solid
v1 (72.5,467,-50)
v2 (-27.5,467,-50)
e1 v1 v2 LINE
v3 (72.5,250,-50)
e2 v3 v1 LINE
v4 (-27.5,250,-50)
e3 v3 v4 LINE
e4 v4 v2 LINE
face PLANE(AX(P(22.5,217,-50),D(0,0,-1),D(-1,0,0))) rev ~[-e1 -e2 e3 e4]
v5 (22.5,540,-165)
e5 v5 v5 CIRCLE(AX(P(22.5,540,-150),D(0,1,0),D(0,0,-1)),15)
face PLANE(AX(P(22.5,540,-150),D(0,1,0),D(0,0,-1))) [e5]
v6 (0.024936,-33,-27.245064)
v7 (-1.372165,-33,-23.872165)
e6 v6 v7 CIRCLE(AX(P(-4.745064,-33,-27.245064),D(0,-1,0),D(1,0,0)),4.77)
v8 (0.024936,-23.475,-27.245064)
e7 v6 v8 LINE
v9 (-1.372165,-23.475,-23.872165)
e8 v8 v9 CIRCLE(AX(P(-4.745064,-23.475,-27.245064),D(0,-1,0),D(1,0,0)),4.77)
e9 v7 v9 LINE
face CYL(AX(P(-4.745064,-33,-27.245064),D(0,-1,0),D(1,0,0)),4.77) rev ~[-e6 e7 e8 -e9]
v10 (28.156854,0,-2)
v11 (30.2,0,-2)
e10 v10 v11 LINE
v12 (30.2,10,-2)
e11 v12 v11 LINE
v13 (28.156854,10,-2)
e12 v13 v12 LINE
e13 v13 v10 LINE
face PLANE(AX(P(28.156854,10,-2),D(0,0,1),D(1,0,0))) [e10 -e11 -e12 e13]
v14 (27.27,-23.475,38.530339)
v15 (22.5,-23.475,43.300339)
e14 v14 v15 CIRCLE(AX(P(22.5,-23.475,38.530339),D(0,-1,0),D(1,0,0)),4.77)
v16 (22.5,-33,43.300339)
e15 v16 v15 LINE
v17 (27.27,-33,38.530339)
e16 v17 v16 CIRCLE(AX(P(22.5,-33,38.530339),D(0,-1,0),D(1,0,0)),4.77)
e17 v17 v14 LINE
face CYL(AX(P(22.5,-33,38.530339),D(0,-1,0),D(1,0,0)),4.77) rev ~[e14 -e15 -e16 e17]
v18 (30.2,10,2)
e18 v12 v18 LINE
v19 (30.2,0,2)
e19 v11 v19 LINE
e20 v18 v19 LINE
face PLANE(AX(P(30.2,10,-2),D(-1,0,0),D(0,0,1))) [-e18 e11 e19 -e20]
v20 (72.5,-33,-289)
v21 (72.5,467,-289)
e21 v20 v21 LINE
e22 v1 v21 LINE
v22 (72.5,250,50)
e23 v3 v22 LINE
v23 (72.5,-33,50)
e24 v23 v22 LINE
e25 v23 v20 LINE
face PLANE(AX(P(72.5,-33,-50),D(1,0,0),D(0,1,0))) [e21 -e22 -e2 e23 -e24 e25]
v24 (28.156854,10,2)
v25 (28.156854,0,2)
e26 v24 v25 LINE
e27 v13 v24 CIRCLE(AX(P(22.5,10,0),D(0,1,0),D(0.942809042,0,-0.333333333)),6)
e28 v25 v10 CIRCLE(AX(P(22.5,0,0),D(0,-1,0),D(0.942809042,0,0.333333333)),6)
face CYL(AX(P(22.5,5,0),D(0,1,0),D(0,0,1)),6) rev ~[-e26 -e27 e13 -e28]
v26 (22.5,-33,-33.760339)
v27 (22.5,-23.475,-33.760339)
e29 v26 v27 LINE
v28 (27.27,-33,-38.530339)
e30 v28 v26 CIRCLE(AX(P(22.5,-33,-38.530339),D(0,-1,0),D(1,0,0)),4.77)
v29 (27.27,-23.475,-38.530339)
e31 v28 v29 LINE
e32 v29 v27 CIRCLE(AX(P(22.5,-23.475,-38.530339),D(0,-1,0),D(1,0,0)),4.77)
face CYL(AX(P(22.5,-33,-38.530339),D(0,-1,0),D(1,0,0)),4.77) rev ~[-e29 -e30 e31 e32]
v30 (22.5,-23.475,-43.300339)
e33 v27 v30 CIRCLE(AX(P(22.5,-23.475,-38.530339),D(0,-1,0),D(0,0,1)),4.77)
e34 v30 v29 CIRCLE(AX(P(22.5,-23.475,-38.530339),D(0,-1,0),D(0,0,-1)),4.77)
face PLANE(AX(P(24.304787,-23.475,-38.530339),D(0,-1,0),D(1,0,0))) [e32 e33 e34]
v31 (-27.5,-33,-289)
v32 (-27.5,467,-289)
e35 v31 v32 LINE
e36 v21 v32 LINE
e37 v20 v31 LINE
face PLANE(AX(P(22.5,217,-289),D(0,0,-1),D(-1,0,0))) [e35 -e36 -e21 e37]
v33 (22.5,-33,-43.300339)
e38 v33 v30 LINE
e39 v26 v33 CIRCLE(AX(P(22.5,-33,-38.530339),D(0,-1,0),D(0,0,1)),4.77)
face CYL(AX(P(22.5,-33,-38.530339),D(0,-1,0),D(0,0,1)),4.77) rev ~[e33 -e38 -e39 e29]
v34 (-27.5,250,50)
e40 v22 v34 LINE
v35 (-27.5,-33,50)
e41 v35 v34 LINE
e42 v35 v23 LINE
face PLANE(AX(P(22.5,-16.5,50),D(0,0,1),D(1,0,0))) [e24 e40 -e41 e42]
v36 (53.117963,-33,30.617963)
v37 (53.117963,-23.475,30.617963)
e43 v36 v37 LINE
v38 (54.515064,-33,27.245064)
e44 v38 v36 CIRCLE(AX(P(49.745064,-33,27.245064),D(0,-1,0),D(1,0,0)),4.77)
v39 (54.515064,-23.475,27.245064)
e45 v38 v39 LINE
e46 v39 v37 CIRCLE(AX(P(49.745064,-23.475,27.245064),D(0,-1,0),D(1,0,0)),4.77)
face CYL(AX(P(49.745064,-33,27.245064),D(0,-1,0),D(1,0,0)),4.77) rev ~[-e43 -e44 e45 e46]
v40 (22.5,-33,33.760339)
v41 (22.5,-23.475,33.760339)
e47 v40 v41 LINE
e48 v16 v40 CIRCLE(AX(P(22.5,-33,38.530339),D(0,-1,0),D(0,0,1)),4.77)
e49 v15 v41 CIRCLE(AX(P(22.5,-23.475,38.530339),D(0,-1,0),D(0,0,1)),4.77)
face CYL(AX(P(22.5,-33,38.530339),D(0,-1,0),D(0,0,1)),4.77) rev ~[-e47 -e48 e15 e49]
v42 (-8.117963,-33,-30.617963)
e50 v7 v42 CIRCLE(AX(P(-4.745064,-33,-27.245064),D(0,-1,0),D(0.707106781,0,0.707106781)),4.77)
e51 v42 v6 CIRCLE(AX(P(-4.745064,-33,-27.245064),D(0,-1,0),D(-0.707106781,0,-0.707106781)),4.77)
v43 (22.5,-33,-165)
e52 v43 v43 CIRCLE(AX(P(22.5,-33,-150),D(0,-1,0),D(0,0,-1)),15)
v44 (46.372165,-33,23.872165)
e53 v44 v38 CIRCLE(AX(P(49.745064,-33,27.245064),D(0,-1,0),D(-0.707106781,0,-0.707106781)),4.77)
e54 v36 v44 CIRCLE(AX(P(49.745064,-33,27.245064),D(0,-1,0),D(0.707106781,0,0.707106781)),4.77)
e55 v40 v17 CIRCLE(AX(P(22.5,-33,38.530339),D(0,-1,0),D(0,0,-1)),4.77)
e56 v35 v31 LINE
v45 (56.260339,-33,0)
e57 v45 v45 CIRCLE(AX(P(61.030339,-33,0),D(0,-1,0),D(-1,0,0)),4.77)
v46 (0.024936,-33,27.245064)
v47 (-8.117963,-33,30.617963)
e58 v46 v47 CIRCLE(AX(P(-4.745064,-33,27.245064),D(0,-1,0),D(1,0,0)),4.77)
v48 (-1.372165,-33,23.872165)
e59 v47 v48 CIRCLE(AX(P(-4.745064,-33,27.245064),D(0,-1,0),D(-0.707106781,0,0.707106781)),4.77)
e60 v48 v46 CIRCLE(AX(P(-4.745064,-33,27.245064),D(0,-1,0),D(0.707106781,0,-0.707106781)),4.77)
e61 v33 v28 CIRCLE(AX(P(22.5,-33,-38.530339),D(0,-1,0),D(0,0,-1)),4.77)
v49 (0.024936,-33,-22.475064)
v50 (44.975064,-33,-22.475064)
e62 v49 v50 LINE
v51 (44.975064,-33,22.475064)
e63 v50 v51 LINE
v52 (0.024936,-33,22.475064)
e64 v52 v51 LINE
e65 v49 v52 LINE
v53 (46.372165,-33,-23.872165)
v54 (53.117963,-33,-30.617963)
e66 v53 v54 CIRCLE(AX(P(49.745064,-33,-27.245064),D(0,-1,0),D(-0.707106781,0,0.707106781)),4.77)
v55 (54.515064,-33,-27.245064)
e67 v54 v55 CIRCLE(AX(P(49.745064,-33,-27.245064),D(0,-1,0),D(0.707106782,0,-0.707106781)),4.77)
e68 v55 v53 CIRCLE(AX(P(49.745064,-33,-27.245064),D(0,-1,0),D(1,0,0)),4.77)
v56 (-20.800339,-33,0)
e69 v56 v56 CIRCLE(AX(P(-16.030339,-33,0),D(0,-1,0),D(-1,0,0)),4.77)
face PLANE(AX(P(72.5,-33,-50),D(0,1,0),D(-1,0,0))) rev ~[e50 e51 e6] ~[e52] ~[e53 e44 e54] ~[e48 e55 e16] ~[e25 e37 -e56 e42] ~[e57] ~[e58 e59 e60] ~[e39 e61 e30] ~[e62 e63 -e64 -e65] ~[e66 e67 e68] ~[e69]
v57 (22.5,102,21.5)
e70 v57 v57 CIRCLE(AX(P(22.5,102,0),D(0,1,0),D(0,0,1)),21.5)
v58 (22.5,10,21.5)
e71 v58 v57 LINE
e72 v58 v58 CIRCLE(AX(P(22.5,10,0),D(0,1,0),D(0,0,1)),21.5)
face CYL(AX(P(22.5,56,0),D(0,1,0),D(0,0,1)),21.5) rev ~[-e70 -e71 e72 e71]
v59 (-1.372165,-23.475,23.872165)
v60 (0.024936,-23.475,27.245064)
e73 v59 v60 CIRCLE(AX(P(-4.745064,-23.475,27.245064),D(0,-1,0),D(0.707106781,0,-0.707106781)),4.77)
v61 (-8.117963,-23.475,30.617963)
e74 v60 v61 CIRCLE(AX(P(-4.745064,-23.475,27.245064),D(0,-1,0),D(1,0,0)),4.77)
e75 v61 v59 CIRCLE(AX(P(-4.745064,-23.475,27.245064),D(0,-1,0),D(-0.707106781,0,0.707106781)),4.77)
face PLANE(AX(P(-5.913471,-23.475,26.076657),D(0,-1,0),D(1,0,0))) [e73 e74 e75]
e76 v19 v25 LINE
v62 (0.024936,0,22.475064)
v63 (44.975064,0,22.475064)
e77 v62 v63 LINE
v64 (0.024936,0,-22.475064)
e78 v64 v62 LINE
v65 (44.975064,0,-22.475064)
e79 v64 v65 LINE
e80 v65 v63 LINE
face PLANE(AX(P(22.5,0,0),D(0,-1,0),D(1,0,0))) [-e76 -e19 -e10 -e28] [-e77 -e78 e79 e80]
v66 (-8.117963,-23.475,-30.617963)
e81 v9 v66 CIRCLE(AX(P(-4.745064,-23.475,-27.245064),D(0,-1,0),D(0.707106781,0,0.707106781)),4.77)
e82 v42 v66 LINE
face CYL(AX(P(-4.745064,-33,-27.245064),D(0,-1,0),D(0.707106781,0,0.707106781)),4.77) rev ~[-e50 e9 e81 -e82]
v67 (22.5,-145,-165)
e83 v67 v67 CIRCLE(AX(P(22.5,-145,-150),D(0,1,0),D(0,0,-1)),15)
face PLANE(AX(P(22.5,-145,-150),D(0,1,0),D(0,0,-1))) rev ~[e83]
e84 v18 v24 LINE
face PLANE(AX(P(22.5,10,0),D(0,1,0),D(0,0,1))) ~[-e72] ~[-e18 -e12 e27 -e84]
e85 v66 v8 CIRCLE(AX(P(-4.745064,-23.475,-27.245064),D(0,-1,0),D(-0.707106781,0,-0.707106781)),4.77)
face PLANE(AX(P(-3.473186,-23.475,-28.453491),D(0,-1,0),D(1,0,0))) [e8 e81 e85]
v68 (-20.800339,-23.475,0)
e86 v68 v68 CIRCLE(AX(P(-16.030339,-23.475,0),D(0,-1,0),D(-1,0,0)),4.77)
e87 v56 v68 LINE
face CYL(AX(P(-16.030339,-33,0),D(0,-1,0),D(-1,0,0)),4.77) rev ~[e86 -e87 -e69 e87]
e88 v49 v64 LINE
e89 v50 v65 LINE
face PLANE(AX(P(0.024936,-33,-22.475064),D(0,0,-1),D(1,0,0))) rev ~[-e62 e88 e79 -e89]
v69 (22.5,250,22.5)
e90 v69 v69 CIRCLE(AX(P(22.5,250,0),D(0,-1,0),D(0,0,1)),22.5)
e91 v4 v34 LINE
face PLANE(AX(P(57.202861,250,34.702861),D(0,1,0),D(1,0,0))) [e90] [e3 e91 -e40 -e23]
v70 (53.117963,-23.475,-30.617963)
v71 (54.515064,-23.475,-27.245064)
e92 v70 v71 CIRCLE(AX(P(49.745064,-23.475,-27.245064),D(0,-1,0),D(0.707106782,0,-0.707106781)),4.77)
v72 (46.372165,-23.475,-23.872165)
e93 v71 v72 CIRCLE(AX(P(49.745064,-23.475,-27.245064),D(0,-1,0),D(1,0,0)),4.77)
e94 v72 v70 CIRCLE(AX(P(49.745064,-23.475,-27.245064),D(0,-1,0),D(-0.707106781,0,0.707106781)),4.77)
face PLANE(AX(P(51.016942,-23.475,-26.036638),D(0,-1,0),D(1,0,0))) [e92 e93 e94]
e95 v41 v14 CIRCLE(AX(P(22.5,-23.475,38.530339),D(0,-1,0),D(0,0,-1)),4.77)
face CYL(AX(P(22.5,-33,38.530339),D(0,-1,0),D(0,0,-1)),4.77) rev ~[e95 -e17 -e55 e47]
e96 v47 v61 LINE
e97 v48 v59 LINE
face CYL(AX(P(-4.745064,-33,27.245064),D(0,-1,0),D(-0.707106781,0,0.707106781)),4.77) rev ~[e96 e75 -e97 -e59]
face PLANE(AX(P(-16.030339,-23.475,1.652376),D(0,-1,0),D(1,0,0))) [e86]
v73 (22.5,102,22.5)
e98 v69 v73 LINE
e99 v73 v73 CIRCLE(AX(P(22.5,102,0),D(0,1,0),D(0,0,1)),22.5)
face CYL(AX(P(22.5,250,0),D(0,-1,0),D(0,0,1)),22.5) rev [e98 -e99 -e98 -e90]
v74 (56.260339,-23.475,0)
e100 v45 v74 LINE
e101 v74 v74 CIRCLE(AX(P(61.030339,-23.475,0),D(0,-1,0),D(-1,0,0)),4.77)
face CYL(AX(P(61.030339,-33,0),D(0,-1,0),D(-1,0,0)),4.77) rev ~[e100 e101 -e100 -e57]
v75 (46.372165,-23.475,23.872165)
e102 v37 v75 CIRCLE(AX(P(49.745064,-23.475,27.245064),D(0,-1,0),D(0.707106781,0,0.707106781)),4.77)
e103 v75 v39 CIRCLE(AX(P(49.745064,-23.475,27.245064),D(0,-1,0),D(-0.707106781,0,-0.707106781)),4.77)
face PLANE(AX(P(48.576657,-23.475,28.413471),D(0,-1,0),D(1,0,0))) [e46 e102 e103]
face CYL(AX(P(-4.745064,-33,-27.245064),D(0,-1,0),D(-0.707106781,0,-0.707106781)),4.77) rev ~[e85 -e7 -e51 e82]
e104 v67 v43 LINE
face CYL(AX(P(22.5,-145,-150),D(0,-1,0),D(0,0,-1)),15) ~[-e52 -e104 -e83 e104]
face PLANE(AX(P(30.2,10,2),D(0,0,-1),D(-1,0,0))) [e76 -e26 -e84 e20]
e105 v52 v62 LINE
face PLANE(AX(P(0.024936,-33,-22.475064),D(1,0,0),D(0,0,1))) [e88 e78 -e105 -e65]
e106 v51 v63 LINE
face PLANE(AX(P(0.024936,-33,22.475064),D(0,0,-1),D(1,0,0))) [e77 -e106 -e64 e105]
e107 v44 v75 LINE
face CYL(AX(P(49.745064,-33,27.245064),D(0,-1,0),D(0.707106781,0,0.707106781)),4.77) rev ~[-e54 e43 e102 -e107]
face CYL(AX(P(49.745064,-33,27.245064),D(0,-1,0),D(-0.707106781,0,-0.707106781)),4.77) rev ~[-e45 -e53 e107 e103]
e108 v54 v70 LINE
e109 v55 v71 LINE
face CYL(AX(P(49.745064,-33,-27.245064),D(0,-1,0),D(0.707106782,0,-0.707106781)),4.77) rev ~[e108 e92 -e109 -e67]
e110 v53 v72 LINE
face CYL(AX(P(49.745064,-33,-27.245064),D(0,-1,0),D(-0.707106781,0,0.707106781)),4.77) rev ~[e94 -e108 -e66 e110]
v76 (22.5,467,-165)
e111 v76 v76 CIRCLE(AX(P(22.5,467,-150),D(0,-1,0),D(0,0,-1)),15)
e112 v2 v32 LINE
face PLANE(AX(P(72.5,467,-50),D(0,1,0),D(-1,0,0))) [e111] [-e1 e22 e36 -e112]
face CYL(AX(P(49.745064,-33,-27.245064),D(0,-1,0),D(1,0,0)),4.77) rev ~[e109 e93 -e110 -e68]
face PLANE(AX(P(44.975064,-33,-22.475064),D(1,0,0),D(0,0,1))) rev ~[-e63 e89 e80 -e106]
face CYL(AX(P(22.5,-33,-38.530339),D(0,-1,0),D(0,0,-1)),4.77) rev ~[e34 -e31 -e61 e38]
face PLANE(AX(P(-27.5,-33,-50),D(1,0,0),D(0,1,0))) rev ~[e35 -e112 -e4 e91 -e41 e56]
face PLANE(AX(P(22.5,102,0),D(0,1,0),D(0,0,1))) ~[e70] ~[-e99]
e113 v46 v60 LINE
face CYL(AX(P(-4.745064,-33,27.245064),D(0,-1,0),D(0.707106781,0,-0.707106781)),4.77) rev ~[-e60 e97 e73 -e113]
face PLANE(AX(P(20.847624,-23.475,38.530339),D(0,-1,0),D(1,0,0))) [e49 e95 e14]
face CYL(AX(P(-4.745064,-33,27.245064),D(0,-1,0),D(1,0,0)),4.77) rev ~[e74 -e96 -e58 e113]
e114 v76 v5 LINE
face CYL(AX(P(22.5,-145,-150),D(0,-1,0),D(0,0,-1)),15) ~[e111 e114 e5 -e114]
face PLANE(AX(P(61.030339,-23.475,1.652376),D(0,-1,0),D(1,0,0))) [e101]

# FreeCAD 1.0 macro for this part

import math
import FreeCAD as App
import Part
import Sketcher

V = App.Vector

doc = App.newDocument("Part")
body = doc.addObject("PartDesign::Body", "Body")

# Sketch on XY plane
sketch1 = body.newObject("Sketcher::SketchObject", "Sketch")
sketch1.AttachmentSupport = (doc.getObject("XY_Plane"), [""])
sketch1.MapMode = "FlatFace"
sketch1.addGeometry(Part.LineSegment(V(-10, 0, 0), V(16.5, 0, 0)), False)
sketch1.addGeometry(Part.LineSegment(V(16.5, 0, 0), V(16.5, 10, 0)), False)
sketch1.addGeometry(Part.LineSegment(V(16.5, 10, 0), V(1, 10, 0)), False)
sketch1.addGeometry(Part.LineSegment(V(1, 10, 0), V(1, 102, 0)), False)
sketch1.addGeometry(Part.LineSegment(V(1, 102, 0), V(0, 102, 0)), False)
sketch1.addGeometry(Part.LineSegment(V(0, 102, 0), V(0, 250, 0)), False)
sketch1.addGeometry(Part.LineSegment(V(0, 250, 0), V(-10, 250, 0)), False)
sketch1.addGeometry(Part.LineSegment(V(-10, 250, 0), V(-10, 0, 0)), False)
sketch1.addGeometry(Part.LineSegment(V(28.5, 10, 0), V(28.5, 0, 0)), False)
sketch1.addGeometry(Part.LineSegment(V(28.5, 0, 0), V(55, 0, 0)), False)
sketch1.addGeometry(Part.LineSegment(V(55, 0, 0), V(55, 250, 0)), False)
sketch1.addGeometry(Part.LineSegment(V(55, 250, 0), V(45, 250, 0)), False)
sketch1.addGeometry(Part.LineSegment(V(45, 250, 0), V(45, 102, 0)), False)
sketch1.addGeometry(Part.LineSegment(V(45, 102, 0), V(44, 102, 0)), False)
sketch1.addGeometry(Part.LineSegment(V(44, 102, 0), V(44, 10, 0)), False)
sketch1.addGeometry(Part.LineSegment(V(44, 10, 0), V(28.5, 10, 0)), False)
sketch1.addGeometry(Part.LineSegment(V(22.5, 0, 0), V(22.5, 250, 0)), True)  # axis
sketch1.addConstraint(Sketcher.Constraint("Coincident", 0, 2, 1, 1))
sketch1.addConstraint(Sketcher.Constraint("Coincident", 1, 2, 2, 1))
sketch1.addConstraint(Sketcher.Constraint("Coincident", 2, 2, 3, 1))
sketch1.addConstraint(Sketcher.Constraint("Coincident", 3, 2, 4, 1))
sketch1.addConstraint(Sketcher.Constraint("Coincident", 4, 2, 5, 1))
sketch1.addConstraint(Sketcher.Constraint("Coincident", 5, 2, 6, 1))
sketch1.addConstraint(Sketcher.Constraint("Coincident", 6, 2, 7, 1))
sketch1.addConstraint(Sketcher.Constraint("Coincident", 7, 2, 0, 1))
sketch1.addConstraint(Sketcher.Constraint("Coincident", 8, 2, 9, 1))
sketch1.addConstraint(Sketcher.Constraint("Coincident", 9, 2, 10, 1))
sketch1.addConstraint(Sketcher.Constraint("Coincident", 10, 2, 11, 1))
sketch1.addConstraint(Sketcher.Constraint("Coincident", 11, 2, 12, 1))
sketch1.addConstraint(Sketcher.Constraint("Coincident", 12, 2, 13, 1))
sketch1.addConstraint(Sketcher.Constraint("Coincident", 13, 2, 14, 1))
sketch1.addConstraint(Sketcher.Constraint("Coincident", 14, 2, 15, 1))
sketch1.addConstraint(Sketcher.Constraint("Coincident", 15, 2, 8, 1))
sketch1.addConstraint(Sketcher.Constraint("Horizontal", 0))
sketch1.addConstraint(Sketcher.Constraint("Vertical", 1))
sketch1.addConstraint(Sketcher.Constraint("Horizontal", 2))
sketch1.addConstraint(Sketcher.Constraint("Vertical", 3))
sketch1.addConstraint(Sketcher.Constraint("Horizontal", 4))
sketch1.addConstraint(Sketcher.Constraint("Vertical", 5))
sketch1.addConstraint(Sketcher.Constraint("Horizontal", 6))
sketch1.addConstraint(Sketcher.Constraint("Vertical", 7))
sketch1.addConstraint(Sketcher.Constraint("Vertical", 8))
sketch1.addConstraint(Sketcher.Constraint("Horizontal", 9))
sketch1.addConstraint(Sketcher.Constraint("Vertical", 10))
sketch1.addConstraint(Sketcher.Constraint("Horizontal", 11))
sketch1.addConstraint(Sketcher.Constraint("Vertical", 12))
sketch1.addConstraint(Sketcher.Constraint("Horizontal", 13))
sketch1.addConstraint(Sketcher.Constraint("Vertical", 14))
sketch1.addConstraint(Sketcher.Constraint("Horizontal", 15))
sketch1.addConstraint(Sketcher.Constraint("Vertical", 16))
sketch1.addConstraint(Sketcher.Constraint("PointOnObject", 0, 2, -1))
sketch1.addConstraint(Sketcher.Constraint("PointOnObject", 4, 2, -2))
sketch1.addConstraint(Sketcher.Constraint("PointOnObject", 8, 2, -1))
sketch1.addConstraint(Sketcher.Constraint("PointOnObject", 16, 1, -1))
sketch1.addConstraint(Sketcher.Constraint("Horizontal", 6, 2, 10, 2))
sketch1.addConstraint(Sketcher.Constraint("Horizontal", 4, 2, 12, 2))
sketch1.addConstraint(Sketcher.Constraint("Horizontal", 2, 2, 14, 2))
sketch1.addConstraint(Sketcher.Constraint("Horizontal", 11, 2, 16, 2))
sketch1.addConstraint(Sketcher.Constraint("Equal", 0, 9))
sketch1.addConstraint(Sketcher.Constraint("Equal", 6, 11))
sketch1.addConstraint(Sketcher.Constraint("Equal", 4, 13))
sketch1.addConstraint(Sketcher.Constraint("Equal", 11, 1))
sketch1.addConstraint(Sketcher.Constraint("DistanceX", 4, 2, 4, 1, 1.0))
sketch1.addConstraint(Sketcher.Constraint("DistanceX", 6, 2, 6, 1, 10.0))
sketch1.addConstraint(Sketcher.Constraint("DistanceY", 3, 1, 3, 2, 92.0))
sketch1.addConstraint(Sketcher.Constraint("DistanceY", 5, 1, 5, 2, 148.0))
sketch1.addConstraint(Sketcher.Constraint("DistanceX", 0, 1, 0, 2, 26.5))
sketch1.addConstraint(Sketcher.Constraint("DistanceX", -1, 1, 9, 2, 55.0))
sketch1.addConstraint(Sketcher.Constraint("DistanceX", 0, 2, 16, 1, 6.0))
revolution = body.newObject("PartDesign::Revolution", "Revolution")
revolution.Profile = sketch1
revolution.ReferenceAxis = (sketch1, ["Axis0"])
revolution.Angle = 360

# Sketch on XZ plane
sketch2 = body.newObject("Sketcher::SketchObject", "Sketch001")
sketch2.AttachmentSupport = (doc.getObject("XZ_Plane"), [""])
sketch2.MapMode = "FlatFace"
sketch2.AttachmentOffset = App.Placement(V(0, 0, -10), App.Rotation())
sketch2.addGeometry(Part.LineSegment(V(30.2, -2, 0), V(30.2, 2, 0)), False)
sketch2.addGeometry(Part.LineSegment(V(30.2, 2, 0), V(28.156854, 2, 0)), False)
sketch2.addGeometry(Part.ArcOfCircle(Part.Circle(V(22.5, 0, 0), V(0, 0, 1), 6), math.radians(0), math.radians(19.471221)), False)
sketch2.addGeometry(Part.ArcOfCircle(Part.Circle(V(22.5, 0, 0), V(0, 0, 1), 6), math.radians(-19.471221), math.radians(0)), False)
sketch2.addGeometry(Part.LineSegment(V(28.156854, -2, 0), V(30.2, -2, 0)), False)
sketch2.addConstraint(Sketcher.Constraint("Coincident", 0, 2, 1, 1))
sketch2.addConstraint(Sketcher.Constraint("Coincident", 1, 2, 2, 2))
sketch2.addConstraint(Sketcher.Constraint("Tangent", 2, 1, 3, 2))
sketch2.addConstraint(Sketcher.Constraint("Coincident", 3, 1, 4, 1))
sketch2.addConstraint(Sketcher.Constraint("Coincident", 4, 2, 0, 1))
sketch2.addConstraint(Sketcher.Constraint("Vertical", 0))
sketch2.addConstraint(Sketcher.Constraint("Horizontal", 1))
sketch2.addConstraint(Sketcher.Constraint("Horizontal", 4))
sketch2.addConstraint(Sketcher.Constraint("Equal", 2, 3))
sketch2.addConstraint(Sketcher.Constraint("Symmetric", 1, 2, 3, 1, -1))
sketch2.addConstraint(Sketcher.Constraint("PointOnObject", 2, 1, -1))
sketch2.addConstraint(Sketcher.Constraint("Radius", 2, 6.0))
sketch2.addConstraint(Sketcher.Constraint("DistanceY", 0, 1, 0, 2, 4.0))
sketch2.addConstraint(Sketcher.Constraint("DistanceX", -1, 1, 2, 3, 22.5))
sketch2.addConstraint(Sketcher.Constraint("DistanceX", -1, 1, 0, 2, 30.2))
pocket1 = body.newObject("PartDesign::Pocket", "Pocket")
pocket1.Profile = sketch2
pocket1.Length = 10
pocket1.Reversed = True

# Sketch on XZ plane
sketch3 = body.newObject("Sketcher::SketchObject", "Sketch002")
sketch3.AttachmentSupport = (doc.getObject("XZ_Plane"), [""])
sketch3.MapMode = "FlatFace"
sketch3.addGeometry(Part.Circle(V(22.5, 0, 0), V(0, 0, 1), 50), False)
sketch3.addGeometry(Part.Circle(V(22.5, 0, 0), V(0, 0, 1), 32.5), False)
sketch3.addConstraint(Sketcher.Constraint("Coincident", 1, 3, 0, 3))
sketch3.addConstraint(Sketcher.Constraint("PointOnObject", 0, 3, -1))
sketch3.addConstraint(Sketcher.Constraint("Diameter", 0, 100.0))
sketch3.addConstraint(Sketcher.Constraint("Diameter", 1, 65.0))
sketch3.addConstraint(Sketcher.Constraint("DistanceX", -1, 1, 0, 3, 22.5))
pad1 = body.newObject("PartDesign::Pad", "Pad")
pad1.Profile = sketch3
pad1.Length = 250
pad1.Reversed = True

# Sketch on XZ plane
sketch4 = body.newObject("Sketcher::SketchObject", "Sketch003")
sketch4.AttachmentSupport = (doc.getObject("XZ_Plane"), [""])
sketch4.MapMode = "FlatFace"
sketch4.addGeometry(Part.ArcOfCircle(Part.Circle(V(22.5, 0, 0), V(0, 0, 1), 50), math.radians(0), math.radians(90)), False)
sketch4.addGeometry(Part.LineSegment(V(22.5, 50, 0), V(72.5, 50, 0)), False)
sketch4.addGeometry(Part.LineSegment(V(72.5, 50, 0), V(72.5, 0, 0)), False)
sketch4.addGeometry(Part.ArcOfCircle(Part.Circle(V(22.5, 0, 0), V(0, 0, 1), 50), math.radians(90), math.radians(180)), False)
sketch4.addGeometry(Part.LineSegment(V(-27.5, 0, 0), V(-27.5, 50, 0)), False)
sketch4.addGeometry(Part.LineSegment(V(-27.5, 50, 0), V(22.5, 50, 0)), False)
sketch4.addGeometry(Part.LineSegment(V(72.5, -50, 0), V(22.5, -50, 0)), False)
sketch4.addGeometry(Part.ArcOfCircle(Part.Circle(V(22.5, 0, 0), V(0, 0, 1), 50), math.radians(-90), math.radians(0)), False)
sketch4.addGeometry(Part.LineSegment(V(72.5, 0, 0), V(72.5, -50, 0)), False)
sketch4.addGeometry(Part.LineSegment(V(-27.5, -50, 0), V(-27.5, 0, 0)), False)
sketch4.addGeometry(Part.ArcOfCircle(Part.Circle(V(22.5, 0, 0), V(0, 0, 1), 50), math.radians(-180), math.radians(-90)), False)
sketch4.addGeometry(Part.LineSegment(V(22.5, -50, 0), V(-27.5, -50, 0)), False)
sketch4.addConstraint(Sketcher.Constraint("Tangent", 0, 2, 1, 1))
sketch4.addConstraint(Sketcher.Constraint("Coincident", 1, 2, 2, 1))
sketch4.addConstraint(Sketcher.Constraint("Tangent", 2, 2, 0, 1))
sketch4.addConstraint(Sketcher.Constraint("Tangent", 3, 2, 4, 1))
sketch4.addConstraint(Sketcher.Constraint("Coincident", 4, 2, 5, 1))
sketch4.addConstraint(Sketcher.Constraint("Tangent", 5, 2, 3, 1))
sketch4.addConstraint(Sketcher.Constraint("Tangent", 6, 2, 7, 1))
sketch4.addConstraint(Sketcher.Constraint("Tangent", 7, 2, 8, 1))
sketch4.addConstraint(Sketcher.Constraint("Coincident", 8, 2, 6, 1))
sketch4.addConstraint(Sketcher.Constraint("Tangent", 9, 2, 10, 1))
sketch4.addConstraint(Sketcher.Constraint("Tangent", 10, 2, 11, 1))
sketch4.addConstraint(Sketcher.Constraint("Coincident", 11, 2, 9, 1))
sketch4.addConstraint(Sketcher.Constraint("Horizontal", 1))
sketch4.addConstraint(Sketcher.Constraint("Vertical", 2))
sketch4.addConstraint(Sketcher.Constraint("Vertical", 4))
sketch4.addConstraint(Sketcher.Constraint("Horizontal", 5))
sketch4.addConstraint(Sketcher.Constraint("Horizontal", 6))
sketch4.addConstraint(Sketcher.Constraint("Vertical", 8))
sketch4.addConstraint(Sketcher.Constraint("Vertical", 9))
sketch4.addConstraint(Sketcher.Constraint("Horizontal", 11))
sketch4.addConstraint(Sketcher.Constraint("Coincident", 3, 3, 0, 3))
sketch4.addConstraint(Sketcher.Constraint("Coincident", 7, 3, 0, 3))
sketch4.addConstraint(Sketcher.Constraint("Coincident", 10, 3, 0, 3))
sketch4.addConstraint(Sketcher.Constraint("Equal", 0, 3))
sketch4.addConstraint(Sketcher.Constraint("Equal", 3, 7))
sketch4.addConstraint(Sketcher.Constraint("Equal", 7, 10))
sketch4.addConstraint(Sketcher.Constraint("PointOnObject", 0, 3, -1))
sketch4.addConstraint(Sketcher.Constraint("Radius", 0, 50.0))
sketch4.addConstraint(Sketcher.Constraint("DistanceX", -1, 1, 0, 3, 22.5))
pad2 = body.newObject("PartDesign::Pad", "Pad001")
pad2.Profile = sketch4
pad2.Length = 250
pad2.Reversed = True

# Sketch on XY plane
sketch5 = body.newObject("Sketcher::SketchObject", "Sketch004")
sketch5.AttachmentSupport = (doc.getObject("XY_Plane"), [""])
sketch5.MapMode = "FlatFace"
sketch5.addGeometry(Part.LineSegment(V(-27.5, 0, 0), V(-27.5, -33, 0)), False)
sketch5.addGeometry(Part.LineSegment(V(-27.5, -33, 0), V(72.5, -33, 0)), False)
sketch5.addGeometry(Part.LineSegment(V(72.5, -33, 0), V(72.5, 0, 0)), False)
sketch5.addGeometry(Part.LineSegment(V(72.5, 0, 0), V(-27.5, 0, 0)), False)
sketch5.addConstraint(Sketcher.Constraint("Coincident", 0, 2, 1, 1))
sketch5.addConstraint(Sketcher.Constraint("Coincident", 1, 2, 2, 1))
sketch5.addConstraint(Sketcher.Constraint("Coincident", 2, 2, 3, 1))
sketch5.addConstraint(Sketcher.Constraint("Coincident", 3, 2, 0, 1))
sketch5.addConstraint(Sketcher.Constraint("Vertical", 0))
sketch5.addConstraint(Sketcher.Constraint("Horizontal", 1))
sketch5.addConstraint(Sketcher.Constraint("Vertical", 2))
sketch5.addConstraint(Sketcher.Constraint("Horizontal", 3))
sketch5.addConstraint(Sketcher.Constraint("PointOnObject", 2, 2, -1))
sketch5.addConstraint(Sketcher.Constraint("DistanceX", 1, 1, 1, 2, 100.0))
sketch5.addConstraint(Sketcher.Constraint("DistanceY", 0, 2, 0, 1, 33.0))
sketch5.addConstraint(Sketcher.Constraint("DistanceX", 0, 2, -1, 1, 27.5))
pad3 = body.newObject("PartDesign::Pad", "Pad002")
pad3.Profile = sketch5
pad3.Type = "TwoLengths"
pad3.Length = 50
pad3.Length2 = 50

# Sketch on XZ plane
sketch6 = body.newObject("Sketcher::SketchObject", "Sketch005")
sketch6.AttachmentSupport = (doc.getObject("XZ_Plane"), [""])
sketch6.MapMode = "FlatFace"
sketch6.AttachmentOffset = App.Placement(V(0, 0, 33), App.Rotation())
sketch6.addGeometry(Part.ArcOfCircle(Part.Circle(V(-4.745064, -27.245064, 0), V(0, 0, 1), 4.77), math.radians(0), math.radians(45)), False)
sketch6.addGeometry(Part.ArcOfCircle(Part.Circle(V(-4.745064, -27.245064, 0), V(0, 0, 1), 4.77), math.radians(45), math.radians(225)), False)
sketch6.addGeometry(Part.ArcOfCircle(Part.Circle(V(-4.745064, -27.245064, 0), V(0, 0, 1), 4.77), math.radians(-135), math.radians(0)), False)
sketch6.addGeometry(Part.ArcOfCircle(Part.Circle(V(22.5, -38.530339, 0), V(0, 0, 1), 4.77), math.radians(0), math.radians(90)), False)
sketch6.addGeometry(Part.ArcOfCircle(Part.Circle(V(22.5, -38.530339, 0), V(0, 0, 1), 4.77), math.radians(90), math.radians(270)), False)
sketch6.addGeometry(Part.ArcOfCircle(Part.Circle(V(22.5, -38.530339, 0), V(0, 0, 1), 4.77), math.radians(-90), math.radians(0)), False)
sketch6.addGeometry(Part.ArcOfCircle(Part.Circle(V(49.745064, -27.245064, 0), V(0, 0, 1), 4.77), math.radians(0), math.radians(135)), False)
sketch6.addGeometry(Part.ArcOfCircle(Part.Circle(V(49.745064, -27.245064, 0), V(0, 0, 1), 4.77), math.radians(135), math.radians(315)), False)
sketch6.addGeometry(Part.ArcOfCircle(Part.Circle(V(49.745064, -27.245064, 0), V(0, 0, 1), 4.77), math.radians(-45), math.radians(0)), False)
sketch6.addGeometry(Part.Circle(V(61.030339, 0, 0), V(0, 0, 1), 4.77), False)
sketch6.addGeometry(Part.ArcOfCircle(Part.Circle(V(49.745064, 27.245064, 0), V(0, 0, 1), 4.77), math.radians(45), math.radians(225)), False)
sketch6.addGeometry(Part.ArcOfCircle(Part.Circle(V(49.745064, 27.245064, 0), V(0, 0, 1), 4.77), math.radians(-135), math.radians(0)), False)
sketch6.addGeometry(Part.ArcOfCircle(Part.Circle(V(49.745064, 27.245064, 0), V(0, 0, 1), 4.77), math.radians(0), math.radians(45)), False)
sketch6.addGeometry(Part.ArcOfCircle(Part.Circle(V(22.5, 38.530339, 0), V(0, 0, 1), 4.77), math.radians(90), math.radians(270)), False)
sketch6.addGeometry(Part.ArcOfCircle(Part.Circle(V(22.5, 38.530339, 0), V(0, 0, 1), 4.77), math.radians(-90), math.radians(0)), False)
sketch6.addGeometry(Part.ArcOfCircle(Part.Circle(V(22.5, 38.530339, 0), V(0, 0, 1), 4.77), math.radians(0), math.radians(90)), False)
sketch6.addGeometry(Part.ArcOfCircle(Part.Circle(V(-4.745064, 27.245064, 0), V(0, 0, 1), 4.77), math.radians(135), math.radians(315)), False)
sketch6.addGeometry(Part.ArcOfCircle(Part.Circle(V(-4.745064, 27.245064, 0), V(0, 0, 1), 4.77), math.radians(-45), math.radians(0)), False)
sketch6.addGeometry(Part.ArcOfCircle(Part.Circle(V(-4.745064, 27.245064, 0), V(0, 0, 1), 4.77), math.radians(0), math.radians(135)), False)
sketch6.addGeometry(Part.Circle(V(-16.030339, 0, 0), V(0, 0, 1), 4.77), False)
sketch6.addConstraint(Sketcher.Constraint("Tangent", 0, 2, 1, 1))
sketch6.addConstraint(Sketcher.Constraint("Tangent", 1, 2, 2, 1))
sketch6.addConstraint(Sketcher.Constraint("Tangent", 2, 2, 0, 1))
sketch6.addConstraint(Sketcher.Constraint("Tangent", 3, 2, 4, 1))
sketch6.addConstraint(Sketcher.Constraint("Tangent", 4, 2, 5, 1))
sketch6.addConstraint(Sketcher.Constraint("Tangent", 5, 2, 3, 1))
sketch6.addConstraint(Sketcher.Constraint("Tangent", 6, 2, 7, 1))
sketch6.addConstraint(Sketcher.Constraint("Tangent", 7, 2, 8, 1))
sketch6.addConstraint(Sketcher.Constraint("Tangent", 8, 2, 6, 1))
sketch6.addConstraint(Sketcher.Constraint("Tangent", 10, 2, 11, 1))
sketch6.addConstraint(Sketcher.Constraint("Tangent", 11, 2, 12, 1))
sketch6.addConstraint(Sketcher.Constraint("Tangent", 12, 2, 10, 1))
sketch6.addConstraint(Sketcher.Constraint("Tangent", 13, 2, 14, 1))
sketch6.addConstraint(Sketcher.Constraint("Tangent", 14, 2, 15, 1))
sketch6.addConstraint(Sketcher.Constraint("Tangent", 15, 2, 13, 1))
sketch6.addConstraint(Sketcher.Constraint("Tangent", 16, 2, 17, 1))
sketch6.addConstraint(Sketcher.Constraint("Tangent", 17, 2, 18, 1))
sketch6.addConstraint(Sketcher.Constraint("Tangent", 18, 2, 16, 1))
sketch6.addConstraint(Sketcher.Constraint("Equal", 2, 3))
sketch6.addConstraint(Sketcher.Constraint("Equal", 5, 6))
sketch6.addConstraint(Sketcher.Constraint("Equal", 8, 9))
sketch6.addConstraint(Sketcher.Constraint("Equal", 9, 10))
sketch6.addConstraint(Sketcher.Constraint("Equal", 12, 13))
sketch6.addConstraint(Sketcher.Constraint("Equal", 15, 16))
sketch6.addConstraint(Sketcher.Constraint("Equal", 18, 19))
sketch6.addConstraint(Sketcher.Constraint("Symmetric", 6, 3, 10, 3, -1))
sketch6.addConstraint(Sketcher.Constraint("Symmetric", 3, 3, 13, 3, -1))
sketch6.addConstraint(Sketcher.Constraint("Symmetric", 0, 3, 16, 3, -1))
sketch6.addConstraint(Sketcher.Constraint("PointOnObject", 9, 3, -1))
sketch6.addConstraint(Sketcher.Constraint("PointOnObject", 19, 3, -1))
sketch6.addConstraint(Sketcher.Constraint("Horizontal", 2, 3, 6, 3))
sketch6.addConstraint(Sketcher.Constraint("Horizontal", 8, 3, 2, 2))
sketch6.addConstraint(Sketcher.Constraint("Horizontal", 4, 3, 5, 2))
sketch6.addConstraint(Sketcher.Constraint("Horizontal", 0, 2, 6, 2))
sketch6.addConstraint(Sketcher.Constraint("Horizontal", 1, 2, 7, 2))
sketch6.addConstraint(Sketcher.Constraint("Horizontal", 2, 2, 8, 2))
sketch6.addConstraint(Sketcher.Constraint("Horizontal", 18, 3, 11, 2))
sketch6.addConstraint(Sketcher.Constraint("Horizontal", 15, 3, 14, 2))
sketch6.addConstraint(Sketcher.Constraint("Horizontal", 10, 2, 16, 2))
sketch6.addConstraint(Sketcher.Constraint("Horizontal", 11, 2, 17, 2))
sketch6.addConstraint(Sketcher.Constraint("Horizontal", 12, 2, 18, 2))
sketch6.addConstraint(Sketcher.Constraint("Vertical", 15, 3, 3, 2))
sketch6.addConstraint(Sketcher.Constraint("Vertical", 3, 2, 4, 2))
sketch6.addConstraint(Sketcher.Constraint("Vertical", 6, 2, 10, 2))
sketch6.addConstraint(Sketcher.Constraint("Vertical", 7, 2, 12, 2))
sketch6.addConstraint(Sketcher.Constraint("Vertical", 4, 2, 13, 2))
sketch6.addConstraint(Sketcher.Constraint("Vertical", 13, 2, 15, 2))
sketch6.addConstraint(Sketcher.Constraint("Diameter", 9, 9.54))
sketch6.addConstraint(Sketcher.Constraint("DistanceX", -1, 1, 3, 3, 22.5))
sketch6.addConstraint(Sketcher.Constraint("DistanceX", 2, 3, 0, 2, 3.372899))
sketch6.addConstraint(Sketcher.Constraint("DistanceX", 1, 2, 1, 3, 3.372899))
sketch6.addConstraint(Sketcher.Constraint("DistanceY", 3, 3, -1, 1, 38.530339))
sketch6.addConstraint(Sketcher.Constraint("DistanceX", -1, 1, 9, 3, 61.030339))
sketch6.addConstraint(Sketcher.Constraint("DistanceX", 19, 3, -1, 1, 16.030339))
sketch6.addConstraint(Sketcher.Constraint("DistanceX", 0, 3, 6, 3, 54.490128))
sketch6.addConstraint(Sketcher.Constraint("DistanceY", 8, 3, 10, 3, 54.490128))
sketch6.addConstraint(Sketcher.Constraint("DistanceX", 0, 3, -1, 1, 4.745064))
pocket2 = body.newObject("PartDesign::Pocket", "Pocket001")
pocket2.Profile = sketch6
pocket2.Length = 9.525

# Sketch on XZ plane
sketch7 = body.newObject("Sketcher::SketchObject", "Sketch006")
sketch7.AttachmentSupport = (doc.getObject("XZ_Plane"), [""])
sketch7.MapMode = "FlatFace"
sketch7.AttachmentOffset = App.Placement(V(0, 0, 33), App.Rotation())
sketch7.addGeometry(Part.LineSegment(V(0.024936, 22.475064, 0), V(0.024936, -22.475064, 0)), False)
sketch7.addGeometry(Part.LineSegment(V(0.024936, -22.475064, 0), V(44.975064, -22.475064, 0)), False)
sketch7.addGeometry(Part.LineSegment(V(44.975064, -22.475064, 0), V(44.975064, 22.475064, 0)), False)
sketch7.addGeometry(Part.LineSegment(V(44.975064, 22.475064, 0), V(0.024936, 22.475064, 0)), False)
sketch7.addConstraint(Sketcher.Constraint("Coincident", 0, 2, 1, 1))
sketch7.addConstraint(Sketcher.Constraint("Coincident", 1, 2, 2, 1))
sketch7.addConstraint(Sketcher.Constraint("Coincident", 2, 2, 3, 1))
sketch7.addConstraint(Sketcher.Constraint("Coincident", 3, 2, 0, 1))
sketch7.addConstraint(Sketcher.Constraint("Vertical", 0))
sketch7.addConstraint(Sketcher.Constraint("Horizontal", 1))
sketch7.addConstraint(Sketcher.Constraint("Vertical", 2))
sketch7.addConstraint(Sketcher.Constraint("Horizontal", 3))
sketch7.addConstraint(Sketcher.Constraint("Equal", 3, 0))
sketch7.addConstraint(Sketcher.Constraint("DistanceX", 1, 1, 1, 2, 44.950128))
sketch7.addConstraint(Sketcher.Constraint("DistanceX", -1, 1, 0, 2, 0.024936))
sketch7.addConstraint(Sketcher.Constraint("DistanceY", 0, 2, -1, 1, 22.475064))
pocket3 = body.newObject("PartDesign::Pocket", "Pocket002")
pocket3.Profile = sketch7
pocket3.Length = 33

# Sketch on XY plane
sketch8 = body.newObject("Sketcher::SketchObject", "Sketch007")
sketch8.AttachmentSupport = (doc.getObject("XY_Plane"), [""])
sketch8.MapMode = "FlatFace"
sketch8.AttachmentOffset = App.Placement(V(0, 0, -50), App.Rotation())
sketch8.addGeometry(Part.LineSegment(V(72.5, 467, 0), V(72.5, -33, 0)), False)
sketch8.addGeometry(Part.LineSegment(V(72.5, -33, 0), V(-27.5, -33, 0)), False)
sketch8.addGeometry(Part.LineSegment(V(-27.5, -33, 0), V(-27.5, 467, 0)), False)
sketch8.addGeometry(Part.LineSegment(V(-27.5, 467, 0), V(72.5, 467, 0)), False)
sketch8.addConstraint(Sketcher.Constraint("Coincident", 0, 2, 1, 1))
sketch8.addConstraint(Sketcher.Constraint("Coincident", 1, 2, 2, 1))
sketch8.addConstraint(Sketcher.Constraint("Coincident", 2, 2, 3, 1))
sketch8.addConstraint(Sketcher.Constraint("Coincident", 3, 2, 0, 1))
sketch8.addConstraint(Sketcher.Constraint("Vertical", 0))
sketch8.addConstraint(Sketcher.Constraint("Horizontal", 1))
sketch8.addConstraint(Sketcher.Constraint("Vertical", 2))
sketch8.addConstraint(Sketcher.Constraint("Horizontal", 3))
sketch8.addConstraint(Sketcher.Constraint("DistanceX", 1, 2, 1, 1, 100.0))
sketch8.addConstraint(Sketcher.Constraint("DistanceY", 0, 2, 0, 1, 500.0))
sketch8.addConstraint(Sketcher.Constraint("DistanceY", 0, 2, -1, 1, 33.0))
sketch8.addConstraint(Sketcher.Constraint("DistanceX", -1, 1, 0, 2, 72.5))
pad4 = body.newObject("PartDesign::Pad", "Pad003")
pad4.Profile = sketch8
pad4.Length = 239
pad4.Reversed = True

# Sketch on XZ plane
sketch9 = body.newObject("Sketcher::SketchObject", "Sketch008")
sketch9.AttachmentSupport = (doc.getObject("XZ_Plane"), [""])
sketch9.MapMode = "FlatFace"
sketch9.AttachmentOffset = App.Placement(V(0, 0, -467), App.Rotation())
sketch9.addGeometry(Part.Circle(V(22.5, -150, 0), V(0, 0, 1), 15), False)
sketch9.addConstraint(Sketcher.Constraint("Diameter", 0, 30.0))
sketch9.addConstraint(Sketcher.Constraint("DistanceY", 0, 3, -1, 1, 150.0))
sketch9.addConstraint(Sketcher.Constraint("DistanceX", -1, 1, 0, 3, 22.5))
pad5 = body.newObject("PartDesign::Pad", "Pad004")
pad5.Profile = sketch9
pad5.Type = "TwoLengths"
pad5.Length = 73
pad5.Length2 = 612
pad5.Reversed = True

doc.recompute()
